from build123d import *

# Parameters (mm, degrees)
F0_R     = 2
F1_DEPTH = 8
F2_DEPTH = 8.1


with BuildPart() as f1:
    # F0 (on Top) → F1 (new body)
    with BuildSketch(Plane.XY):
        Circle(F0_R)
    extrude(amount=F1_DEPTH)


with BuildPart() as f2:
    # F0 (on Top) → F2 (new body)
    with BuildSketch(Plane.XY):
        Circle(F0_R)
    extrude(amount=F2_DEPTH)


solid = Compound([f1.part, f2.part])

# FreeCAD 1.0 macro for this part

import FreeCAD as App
import Part
import Sketcher
from FreeCAD import Vector
Q = App.Units.Quantity

doc = App.newDocument("Part")
body = doc.addObject("PartDesign::Body", "Body")

# Sketch on XY plane
sketch1 = body.newObject("Sketcher::SketchObject", "Sketch")
sketch1.AttachmentSupport = (doc.getObject("XY_Plane"), [""])
sketch1.MapMode = "FlatFace"
sketch1.addGeometry(Part.Circle(Vector(0, 0, 0), Vector(0, 0, 1), 2), False)
sketch1.addConstraint([
    Sketcher.Constraint("Coincident", 0, 3, -1, 1),
    Sketcher.Constraint("Diameter", 0, Q("4 mm")),
])
pad1 = body.newObject("PartDesign::Pad", "Pad")
pad1.Profile = sketch1
pad1.Length = 8
body2 = doc.addObject("PartDesign::Body", "Body001")

# Sketch on XY plane
sketch2 = body2.newObject("Sketcher::SketchObject", "Sketch001")
sketch2.AttachmentSupport = (doc.getObject("XY_Plane001"), [""])
sketch2.MapMode = "FlatFace"
sketch2.addGeometry(Part.Circle(Vector(0, 0, 0), Vector(0, 0, 1), 2), False)
sketch2.addConstraint([
    Sketcher.Constraint("Coincident", 0, 3, -1, 1),
    Sketcher.Constraint("Diameter", 0, Q("4 mm")),
])
pad2 = body2.newObject("PartDesign::Pad", "Pad001")
pad2.Profile = sketch2
pad2.Length = 8.1

doc.recompute()
